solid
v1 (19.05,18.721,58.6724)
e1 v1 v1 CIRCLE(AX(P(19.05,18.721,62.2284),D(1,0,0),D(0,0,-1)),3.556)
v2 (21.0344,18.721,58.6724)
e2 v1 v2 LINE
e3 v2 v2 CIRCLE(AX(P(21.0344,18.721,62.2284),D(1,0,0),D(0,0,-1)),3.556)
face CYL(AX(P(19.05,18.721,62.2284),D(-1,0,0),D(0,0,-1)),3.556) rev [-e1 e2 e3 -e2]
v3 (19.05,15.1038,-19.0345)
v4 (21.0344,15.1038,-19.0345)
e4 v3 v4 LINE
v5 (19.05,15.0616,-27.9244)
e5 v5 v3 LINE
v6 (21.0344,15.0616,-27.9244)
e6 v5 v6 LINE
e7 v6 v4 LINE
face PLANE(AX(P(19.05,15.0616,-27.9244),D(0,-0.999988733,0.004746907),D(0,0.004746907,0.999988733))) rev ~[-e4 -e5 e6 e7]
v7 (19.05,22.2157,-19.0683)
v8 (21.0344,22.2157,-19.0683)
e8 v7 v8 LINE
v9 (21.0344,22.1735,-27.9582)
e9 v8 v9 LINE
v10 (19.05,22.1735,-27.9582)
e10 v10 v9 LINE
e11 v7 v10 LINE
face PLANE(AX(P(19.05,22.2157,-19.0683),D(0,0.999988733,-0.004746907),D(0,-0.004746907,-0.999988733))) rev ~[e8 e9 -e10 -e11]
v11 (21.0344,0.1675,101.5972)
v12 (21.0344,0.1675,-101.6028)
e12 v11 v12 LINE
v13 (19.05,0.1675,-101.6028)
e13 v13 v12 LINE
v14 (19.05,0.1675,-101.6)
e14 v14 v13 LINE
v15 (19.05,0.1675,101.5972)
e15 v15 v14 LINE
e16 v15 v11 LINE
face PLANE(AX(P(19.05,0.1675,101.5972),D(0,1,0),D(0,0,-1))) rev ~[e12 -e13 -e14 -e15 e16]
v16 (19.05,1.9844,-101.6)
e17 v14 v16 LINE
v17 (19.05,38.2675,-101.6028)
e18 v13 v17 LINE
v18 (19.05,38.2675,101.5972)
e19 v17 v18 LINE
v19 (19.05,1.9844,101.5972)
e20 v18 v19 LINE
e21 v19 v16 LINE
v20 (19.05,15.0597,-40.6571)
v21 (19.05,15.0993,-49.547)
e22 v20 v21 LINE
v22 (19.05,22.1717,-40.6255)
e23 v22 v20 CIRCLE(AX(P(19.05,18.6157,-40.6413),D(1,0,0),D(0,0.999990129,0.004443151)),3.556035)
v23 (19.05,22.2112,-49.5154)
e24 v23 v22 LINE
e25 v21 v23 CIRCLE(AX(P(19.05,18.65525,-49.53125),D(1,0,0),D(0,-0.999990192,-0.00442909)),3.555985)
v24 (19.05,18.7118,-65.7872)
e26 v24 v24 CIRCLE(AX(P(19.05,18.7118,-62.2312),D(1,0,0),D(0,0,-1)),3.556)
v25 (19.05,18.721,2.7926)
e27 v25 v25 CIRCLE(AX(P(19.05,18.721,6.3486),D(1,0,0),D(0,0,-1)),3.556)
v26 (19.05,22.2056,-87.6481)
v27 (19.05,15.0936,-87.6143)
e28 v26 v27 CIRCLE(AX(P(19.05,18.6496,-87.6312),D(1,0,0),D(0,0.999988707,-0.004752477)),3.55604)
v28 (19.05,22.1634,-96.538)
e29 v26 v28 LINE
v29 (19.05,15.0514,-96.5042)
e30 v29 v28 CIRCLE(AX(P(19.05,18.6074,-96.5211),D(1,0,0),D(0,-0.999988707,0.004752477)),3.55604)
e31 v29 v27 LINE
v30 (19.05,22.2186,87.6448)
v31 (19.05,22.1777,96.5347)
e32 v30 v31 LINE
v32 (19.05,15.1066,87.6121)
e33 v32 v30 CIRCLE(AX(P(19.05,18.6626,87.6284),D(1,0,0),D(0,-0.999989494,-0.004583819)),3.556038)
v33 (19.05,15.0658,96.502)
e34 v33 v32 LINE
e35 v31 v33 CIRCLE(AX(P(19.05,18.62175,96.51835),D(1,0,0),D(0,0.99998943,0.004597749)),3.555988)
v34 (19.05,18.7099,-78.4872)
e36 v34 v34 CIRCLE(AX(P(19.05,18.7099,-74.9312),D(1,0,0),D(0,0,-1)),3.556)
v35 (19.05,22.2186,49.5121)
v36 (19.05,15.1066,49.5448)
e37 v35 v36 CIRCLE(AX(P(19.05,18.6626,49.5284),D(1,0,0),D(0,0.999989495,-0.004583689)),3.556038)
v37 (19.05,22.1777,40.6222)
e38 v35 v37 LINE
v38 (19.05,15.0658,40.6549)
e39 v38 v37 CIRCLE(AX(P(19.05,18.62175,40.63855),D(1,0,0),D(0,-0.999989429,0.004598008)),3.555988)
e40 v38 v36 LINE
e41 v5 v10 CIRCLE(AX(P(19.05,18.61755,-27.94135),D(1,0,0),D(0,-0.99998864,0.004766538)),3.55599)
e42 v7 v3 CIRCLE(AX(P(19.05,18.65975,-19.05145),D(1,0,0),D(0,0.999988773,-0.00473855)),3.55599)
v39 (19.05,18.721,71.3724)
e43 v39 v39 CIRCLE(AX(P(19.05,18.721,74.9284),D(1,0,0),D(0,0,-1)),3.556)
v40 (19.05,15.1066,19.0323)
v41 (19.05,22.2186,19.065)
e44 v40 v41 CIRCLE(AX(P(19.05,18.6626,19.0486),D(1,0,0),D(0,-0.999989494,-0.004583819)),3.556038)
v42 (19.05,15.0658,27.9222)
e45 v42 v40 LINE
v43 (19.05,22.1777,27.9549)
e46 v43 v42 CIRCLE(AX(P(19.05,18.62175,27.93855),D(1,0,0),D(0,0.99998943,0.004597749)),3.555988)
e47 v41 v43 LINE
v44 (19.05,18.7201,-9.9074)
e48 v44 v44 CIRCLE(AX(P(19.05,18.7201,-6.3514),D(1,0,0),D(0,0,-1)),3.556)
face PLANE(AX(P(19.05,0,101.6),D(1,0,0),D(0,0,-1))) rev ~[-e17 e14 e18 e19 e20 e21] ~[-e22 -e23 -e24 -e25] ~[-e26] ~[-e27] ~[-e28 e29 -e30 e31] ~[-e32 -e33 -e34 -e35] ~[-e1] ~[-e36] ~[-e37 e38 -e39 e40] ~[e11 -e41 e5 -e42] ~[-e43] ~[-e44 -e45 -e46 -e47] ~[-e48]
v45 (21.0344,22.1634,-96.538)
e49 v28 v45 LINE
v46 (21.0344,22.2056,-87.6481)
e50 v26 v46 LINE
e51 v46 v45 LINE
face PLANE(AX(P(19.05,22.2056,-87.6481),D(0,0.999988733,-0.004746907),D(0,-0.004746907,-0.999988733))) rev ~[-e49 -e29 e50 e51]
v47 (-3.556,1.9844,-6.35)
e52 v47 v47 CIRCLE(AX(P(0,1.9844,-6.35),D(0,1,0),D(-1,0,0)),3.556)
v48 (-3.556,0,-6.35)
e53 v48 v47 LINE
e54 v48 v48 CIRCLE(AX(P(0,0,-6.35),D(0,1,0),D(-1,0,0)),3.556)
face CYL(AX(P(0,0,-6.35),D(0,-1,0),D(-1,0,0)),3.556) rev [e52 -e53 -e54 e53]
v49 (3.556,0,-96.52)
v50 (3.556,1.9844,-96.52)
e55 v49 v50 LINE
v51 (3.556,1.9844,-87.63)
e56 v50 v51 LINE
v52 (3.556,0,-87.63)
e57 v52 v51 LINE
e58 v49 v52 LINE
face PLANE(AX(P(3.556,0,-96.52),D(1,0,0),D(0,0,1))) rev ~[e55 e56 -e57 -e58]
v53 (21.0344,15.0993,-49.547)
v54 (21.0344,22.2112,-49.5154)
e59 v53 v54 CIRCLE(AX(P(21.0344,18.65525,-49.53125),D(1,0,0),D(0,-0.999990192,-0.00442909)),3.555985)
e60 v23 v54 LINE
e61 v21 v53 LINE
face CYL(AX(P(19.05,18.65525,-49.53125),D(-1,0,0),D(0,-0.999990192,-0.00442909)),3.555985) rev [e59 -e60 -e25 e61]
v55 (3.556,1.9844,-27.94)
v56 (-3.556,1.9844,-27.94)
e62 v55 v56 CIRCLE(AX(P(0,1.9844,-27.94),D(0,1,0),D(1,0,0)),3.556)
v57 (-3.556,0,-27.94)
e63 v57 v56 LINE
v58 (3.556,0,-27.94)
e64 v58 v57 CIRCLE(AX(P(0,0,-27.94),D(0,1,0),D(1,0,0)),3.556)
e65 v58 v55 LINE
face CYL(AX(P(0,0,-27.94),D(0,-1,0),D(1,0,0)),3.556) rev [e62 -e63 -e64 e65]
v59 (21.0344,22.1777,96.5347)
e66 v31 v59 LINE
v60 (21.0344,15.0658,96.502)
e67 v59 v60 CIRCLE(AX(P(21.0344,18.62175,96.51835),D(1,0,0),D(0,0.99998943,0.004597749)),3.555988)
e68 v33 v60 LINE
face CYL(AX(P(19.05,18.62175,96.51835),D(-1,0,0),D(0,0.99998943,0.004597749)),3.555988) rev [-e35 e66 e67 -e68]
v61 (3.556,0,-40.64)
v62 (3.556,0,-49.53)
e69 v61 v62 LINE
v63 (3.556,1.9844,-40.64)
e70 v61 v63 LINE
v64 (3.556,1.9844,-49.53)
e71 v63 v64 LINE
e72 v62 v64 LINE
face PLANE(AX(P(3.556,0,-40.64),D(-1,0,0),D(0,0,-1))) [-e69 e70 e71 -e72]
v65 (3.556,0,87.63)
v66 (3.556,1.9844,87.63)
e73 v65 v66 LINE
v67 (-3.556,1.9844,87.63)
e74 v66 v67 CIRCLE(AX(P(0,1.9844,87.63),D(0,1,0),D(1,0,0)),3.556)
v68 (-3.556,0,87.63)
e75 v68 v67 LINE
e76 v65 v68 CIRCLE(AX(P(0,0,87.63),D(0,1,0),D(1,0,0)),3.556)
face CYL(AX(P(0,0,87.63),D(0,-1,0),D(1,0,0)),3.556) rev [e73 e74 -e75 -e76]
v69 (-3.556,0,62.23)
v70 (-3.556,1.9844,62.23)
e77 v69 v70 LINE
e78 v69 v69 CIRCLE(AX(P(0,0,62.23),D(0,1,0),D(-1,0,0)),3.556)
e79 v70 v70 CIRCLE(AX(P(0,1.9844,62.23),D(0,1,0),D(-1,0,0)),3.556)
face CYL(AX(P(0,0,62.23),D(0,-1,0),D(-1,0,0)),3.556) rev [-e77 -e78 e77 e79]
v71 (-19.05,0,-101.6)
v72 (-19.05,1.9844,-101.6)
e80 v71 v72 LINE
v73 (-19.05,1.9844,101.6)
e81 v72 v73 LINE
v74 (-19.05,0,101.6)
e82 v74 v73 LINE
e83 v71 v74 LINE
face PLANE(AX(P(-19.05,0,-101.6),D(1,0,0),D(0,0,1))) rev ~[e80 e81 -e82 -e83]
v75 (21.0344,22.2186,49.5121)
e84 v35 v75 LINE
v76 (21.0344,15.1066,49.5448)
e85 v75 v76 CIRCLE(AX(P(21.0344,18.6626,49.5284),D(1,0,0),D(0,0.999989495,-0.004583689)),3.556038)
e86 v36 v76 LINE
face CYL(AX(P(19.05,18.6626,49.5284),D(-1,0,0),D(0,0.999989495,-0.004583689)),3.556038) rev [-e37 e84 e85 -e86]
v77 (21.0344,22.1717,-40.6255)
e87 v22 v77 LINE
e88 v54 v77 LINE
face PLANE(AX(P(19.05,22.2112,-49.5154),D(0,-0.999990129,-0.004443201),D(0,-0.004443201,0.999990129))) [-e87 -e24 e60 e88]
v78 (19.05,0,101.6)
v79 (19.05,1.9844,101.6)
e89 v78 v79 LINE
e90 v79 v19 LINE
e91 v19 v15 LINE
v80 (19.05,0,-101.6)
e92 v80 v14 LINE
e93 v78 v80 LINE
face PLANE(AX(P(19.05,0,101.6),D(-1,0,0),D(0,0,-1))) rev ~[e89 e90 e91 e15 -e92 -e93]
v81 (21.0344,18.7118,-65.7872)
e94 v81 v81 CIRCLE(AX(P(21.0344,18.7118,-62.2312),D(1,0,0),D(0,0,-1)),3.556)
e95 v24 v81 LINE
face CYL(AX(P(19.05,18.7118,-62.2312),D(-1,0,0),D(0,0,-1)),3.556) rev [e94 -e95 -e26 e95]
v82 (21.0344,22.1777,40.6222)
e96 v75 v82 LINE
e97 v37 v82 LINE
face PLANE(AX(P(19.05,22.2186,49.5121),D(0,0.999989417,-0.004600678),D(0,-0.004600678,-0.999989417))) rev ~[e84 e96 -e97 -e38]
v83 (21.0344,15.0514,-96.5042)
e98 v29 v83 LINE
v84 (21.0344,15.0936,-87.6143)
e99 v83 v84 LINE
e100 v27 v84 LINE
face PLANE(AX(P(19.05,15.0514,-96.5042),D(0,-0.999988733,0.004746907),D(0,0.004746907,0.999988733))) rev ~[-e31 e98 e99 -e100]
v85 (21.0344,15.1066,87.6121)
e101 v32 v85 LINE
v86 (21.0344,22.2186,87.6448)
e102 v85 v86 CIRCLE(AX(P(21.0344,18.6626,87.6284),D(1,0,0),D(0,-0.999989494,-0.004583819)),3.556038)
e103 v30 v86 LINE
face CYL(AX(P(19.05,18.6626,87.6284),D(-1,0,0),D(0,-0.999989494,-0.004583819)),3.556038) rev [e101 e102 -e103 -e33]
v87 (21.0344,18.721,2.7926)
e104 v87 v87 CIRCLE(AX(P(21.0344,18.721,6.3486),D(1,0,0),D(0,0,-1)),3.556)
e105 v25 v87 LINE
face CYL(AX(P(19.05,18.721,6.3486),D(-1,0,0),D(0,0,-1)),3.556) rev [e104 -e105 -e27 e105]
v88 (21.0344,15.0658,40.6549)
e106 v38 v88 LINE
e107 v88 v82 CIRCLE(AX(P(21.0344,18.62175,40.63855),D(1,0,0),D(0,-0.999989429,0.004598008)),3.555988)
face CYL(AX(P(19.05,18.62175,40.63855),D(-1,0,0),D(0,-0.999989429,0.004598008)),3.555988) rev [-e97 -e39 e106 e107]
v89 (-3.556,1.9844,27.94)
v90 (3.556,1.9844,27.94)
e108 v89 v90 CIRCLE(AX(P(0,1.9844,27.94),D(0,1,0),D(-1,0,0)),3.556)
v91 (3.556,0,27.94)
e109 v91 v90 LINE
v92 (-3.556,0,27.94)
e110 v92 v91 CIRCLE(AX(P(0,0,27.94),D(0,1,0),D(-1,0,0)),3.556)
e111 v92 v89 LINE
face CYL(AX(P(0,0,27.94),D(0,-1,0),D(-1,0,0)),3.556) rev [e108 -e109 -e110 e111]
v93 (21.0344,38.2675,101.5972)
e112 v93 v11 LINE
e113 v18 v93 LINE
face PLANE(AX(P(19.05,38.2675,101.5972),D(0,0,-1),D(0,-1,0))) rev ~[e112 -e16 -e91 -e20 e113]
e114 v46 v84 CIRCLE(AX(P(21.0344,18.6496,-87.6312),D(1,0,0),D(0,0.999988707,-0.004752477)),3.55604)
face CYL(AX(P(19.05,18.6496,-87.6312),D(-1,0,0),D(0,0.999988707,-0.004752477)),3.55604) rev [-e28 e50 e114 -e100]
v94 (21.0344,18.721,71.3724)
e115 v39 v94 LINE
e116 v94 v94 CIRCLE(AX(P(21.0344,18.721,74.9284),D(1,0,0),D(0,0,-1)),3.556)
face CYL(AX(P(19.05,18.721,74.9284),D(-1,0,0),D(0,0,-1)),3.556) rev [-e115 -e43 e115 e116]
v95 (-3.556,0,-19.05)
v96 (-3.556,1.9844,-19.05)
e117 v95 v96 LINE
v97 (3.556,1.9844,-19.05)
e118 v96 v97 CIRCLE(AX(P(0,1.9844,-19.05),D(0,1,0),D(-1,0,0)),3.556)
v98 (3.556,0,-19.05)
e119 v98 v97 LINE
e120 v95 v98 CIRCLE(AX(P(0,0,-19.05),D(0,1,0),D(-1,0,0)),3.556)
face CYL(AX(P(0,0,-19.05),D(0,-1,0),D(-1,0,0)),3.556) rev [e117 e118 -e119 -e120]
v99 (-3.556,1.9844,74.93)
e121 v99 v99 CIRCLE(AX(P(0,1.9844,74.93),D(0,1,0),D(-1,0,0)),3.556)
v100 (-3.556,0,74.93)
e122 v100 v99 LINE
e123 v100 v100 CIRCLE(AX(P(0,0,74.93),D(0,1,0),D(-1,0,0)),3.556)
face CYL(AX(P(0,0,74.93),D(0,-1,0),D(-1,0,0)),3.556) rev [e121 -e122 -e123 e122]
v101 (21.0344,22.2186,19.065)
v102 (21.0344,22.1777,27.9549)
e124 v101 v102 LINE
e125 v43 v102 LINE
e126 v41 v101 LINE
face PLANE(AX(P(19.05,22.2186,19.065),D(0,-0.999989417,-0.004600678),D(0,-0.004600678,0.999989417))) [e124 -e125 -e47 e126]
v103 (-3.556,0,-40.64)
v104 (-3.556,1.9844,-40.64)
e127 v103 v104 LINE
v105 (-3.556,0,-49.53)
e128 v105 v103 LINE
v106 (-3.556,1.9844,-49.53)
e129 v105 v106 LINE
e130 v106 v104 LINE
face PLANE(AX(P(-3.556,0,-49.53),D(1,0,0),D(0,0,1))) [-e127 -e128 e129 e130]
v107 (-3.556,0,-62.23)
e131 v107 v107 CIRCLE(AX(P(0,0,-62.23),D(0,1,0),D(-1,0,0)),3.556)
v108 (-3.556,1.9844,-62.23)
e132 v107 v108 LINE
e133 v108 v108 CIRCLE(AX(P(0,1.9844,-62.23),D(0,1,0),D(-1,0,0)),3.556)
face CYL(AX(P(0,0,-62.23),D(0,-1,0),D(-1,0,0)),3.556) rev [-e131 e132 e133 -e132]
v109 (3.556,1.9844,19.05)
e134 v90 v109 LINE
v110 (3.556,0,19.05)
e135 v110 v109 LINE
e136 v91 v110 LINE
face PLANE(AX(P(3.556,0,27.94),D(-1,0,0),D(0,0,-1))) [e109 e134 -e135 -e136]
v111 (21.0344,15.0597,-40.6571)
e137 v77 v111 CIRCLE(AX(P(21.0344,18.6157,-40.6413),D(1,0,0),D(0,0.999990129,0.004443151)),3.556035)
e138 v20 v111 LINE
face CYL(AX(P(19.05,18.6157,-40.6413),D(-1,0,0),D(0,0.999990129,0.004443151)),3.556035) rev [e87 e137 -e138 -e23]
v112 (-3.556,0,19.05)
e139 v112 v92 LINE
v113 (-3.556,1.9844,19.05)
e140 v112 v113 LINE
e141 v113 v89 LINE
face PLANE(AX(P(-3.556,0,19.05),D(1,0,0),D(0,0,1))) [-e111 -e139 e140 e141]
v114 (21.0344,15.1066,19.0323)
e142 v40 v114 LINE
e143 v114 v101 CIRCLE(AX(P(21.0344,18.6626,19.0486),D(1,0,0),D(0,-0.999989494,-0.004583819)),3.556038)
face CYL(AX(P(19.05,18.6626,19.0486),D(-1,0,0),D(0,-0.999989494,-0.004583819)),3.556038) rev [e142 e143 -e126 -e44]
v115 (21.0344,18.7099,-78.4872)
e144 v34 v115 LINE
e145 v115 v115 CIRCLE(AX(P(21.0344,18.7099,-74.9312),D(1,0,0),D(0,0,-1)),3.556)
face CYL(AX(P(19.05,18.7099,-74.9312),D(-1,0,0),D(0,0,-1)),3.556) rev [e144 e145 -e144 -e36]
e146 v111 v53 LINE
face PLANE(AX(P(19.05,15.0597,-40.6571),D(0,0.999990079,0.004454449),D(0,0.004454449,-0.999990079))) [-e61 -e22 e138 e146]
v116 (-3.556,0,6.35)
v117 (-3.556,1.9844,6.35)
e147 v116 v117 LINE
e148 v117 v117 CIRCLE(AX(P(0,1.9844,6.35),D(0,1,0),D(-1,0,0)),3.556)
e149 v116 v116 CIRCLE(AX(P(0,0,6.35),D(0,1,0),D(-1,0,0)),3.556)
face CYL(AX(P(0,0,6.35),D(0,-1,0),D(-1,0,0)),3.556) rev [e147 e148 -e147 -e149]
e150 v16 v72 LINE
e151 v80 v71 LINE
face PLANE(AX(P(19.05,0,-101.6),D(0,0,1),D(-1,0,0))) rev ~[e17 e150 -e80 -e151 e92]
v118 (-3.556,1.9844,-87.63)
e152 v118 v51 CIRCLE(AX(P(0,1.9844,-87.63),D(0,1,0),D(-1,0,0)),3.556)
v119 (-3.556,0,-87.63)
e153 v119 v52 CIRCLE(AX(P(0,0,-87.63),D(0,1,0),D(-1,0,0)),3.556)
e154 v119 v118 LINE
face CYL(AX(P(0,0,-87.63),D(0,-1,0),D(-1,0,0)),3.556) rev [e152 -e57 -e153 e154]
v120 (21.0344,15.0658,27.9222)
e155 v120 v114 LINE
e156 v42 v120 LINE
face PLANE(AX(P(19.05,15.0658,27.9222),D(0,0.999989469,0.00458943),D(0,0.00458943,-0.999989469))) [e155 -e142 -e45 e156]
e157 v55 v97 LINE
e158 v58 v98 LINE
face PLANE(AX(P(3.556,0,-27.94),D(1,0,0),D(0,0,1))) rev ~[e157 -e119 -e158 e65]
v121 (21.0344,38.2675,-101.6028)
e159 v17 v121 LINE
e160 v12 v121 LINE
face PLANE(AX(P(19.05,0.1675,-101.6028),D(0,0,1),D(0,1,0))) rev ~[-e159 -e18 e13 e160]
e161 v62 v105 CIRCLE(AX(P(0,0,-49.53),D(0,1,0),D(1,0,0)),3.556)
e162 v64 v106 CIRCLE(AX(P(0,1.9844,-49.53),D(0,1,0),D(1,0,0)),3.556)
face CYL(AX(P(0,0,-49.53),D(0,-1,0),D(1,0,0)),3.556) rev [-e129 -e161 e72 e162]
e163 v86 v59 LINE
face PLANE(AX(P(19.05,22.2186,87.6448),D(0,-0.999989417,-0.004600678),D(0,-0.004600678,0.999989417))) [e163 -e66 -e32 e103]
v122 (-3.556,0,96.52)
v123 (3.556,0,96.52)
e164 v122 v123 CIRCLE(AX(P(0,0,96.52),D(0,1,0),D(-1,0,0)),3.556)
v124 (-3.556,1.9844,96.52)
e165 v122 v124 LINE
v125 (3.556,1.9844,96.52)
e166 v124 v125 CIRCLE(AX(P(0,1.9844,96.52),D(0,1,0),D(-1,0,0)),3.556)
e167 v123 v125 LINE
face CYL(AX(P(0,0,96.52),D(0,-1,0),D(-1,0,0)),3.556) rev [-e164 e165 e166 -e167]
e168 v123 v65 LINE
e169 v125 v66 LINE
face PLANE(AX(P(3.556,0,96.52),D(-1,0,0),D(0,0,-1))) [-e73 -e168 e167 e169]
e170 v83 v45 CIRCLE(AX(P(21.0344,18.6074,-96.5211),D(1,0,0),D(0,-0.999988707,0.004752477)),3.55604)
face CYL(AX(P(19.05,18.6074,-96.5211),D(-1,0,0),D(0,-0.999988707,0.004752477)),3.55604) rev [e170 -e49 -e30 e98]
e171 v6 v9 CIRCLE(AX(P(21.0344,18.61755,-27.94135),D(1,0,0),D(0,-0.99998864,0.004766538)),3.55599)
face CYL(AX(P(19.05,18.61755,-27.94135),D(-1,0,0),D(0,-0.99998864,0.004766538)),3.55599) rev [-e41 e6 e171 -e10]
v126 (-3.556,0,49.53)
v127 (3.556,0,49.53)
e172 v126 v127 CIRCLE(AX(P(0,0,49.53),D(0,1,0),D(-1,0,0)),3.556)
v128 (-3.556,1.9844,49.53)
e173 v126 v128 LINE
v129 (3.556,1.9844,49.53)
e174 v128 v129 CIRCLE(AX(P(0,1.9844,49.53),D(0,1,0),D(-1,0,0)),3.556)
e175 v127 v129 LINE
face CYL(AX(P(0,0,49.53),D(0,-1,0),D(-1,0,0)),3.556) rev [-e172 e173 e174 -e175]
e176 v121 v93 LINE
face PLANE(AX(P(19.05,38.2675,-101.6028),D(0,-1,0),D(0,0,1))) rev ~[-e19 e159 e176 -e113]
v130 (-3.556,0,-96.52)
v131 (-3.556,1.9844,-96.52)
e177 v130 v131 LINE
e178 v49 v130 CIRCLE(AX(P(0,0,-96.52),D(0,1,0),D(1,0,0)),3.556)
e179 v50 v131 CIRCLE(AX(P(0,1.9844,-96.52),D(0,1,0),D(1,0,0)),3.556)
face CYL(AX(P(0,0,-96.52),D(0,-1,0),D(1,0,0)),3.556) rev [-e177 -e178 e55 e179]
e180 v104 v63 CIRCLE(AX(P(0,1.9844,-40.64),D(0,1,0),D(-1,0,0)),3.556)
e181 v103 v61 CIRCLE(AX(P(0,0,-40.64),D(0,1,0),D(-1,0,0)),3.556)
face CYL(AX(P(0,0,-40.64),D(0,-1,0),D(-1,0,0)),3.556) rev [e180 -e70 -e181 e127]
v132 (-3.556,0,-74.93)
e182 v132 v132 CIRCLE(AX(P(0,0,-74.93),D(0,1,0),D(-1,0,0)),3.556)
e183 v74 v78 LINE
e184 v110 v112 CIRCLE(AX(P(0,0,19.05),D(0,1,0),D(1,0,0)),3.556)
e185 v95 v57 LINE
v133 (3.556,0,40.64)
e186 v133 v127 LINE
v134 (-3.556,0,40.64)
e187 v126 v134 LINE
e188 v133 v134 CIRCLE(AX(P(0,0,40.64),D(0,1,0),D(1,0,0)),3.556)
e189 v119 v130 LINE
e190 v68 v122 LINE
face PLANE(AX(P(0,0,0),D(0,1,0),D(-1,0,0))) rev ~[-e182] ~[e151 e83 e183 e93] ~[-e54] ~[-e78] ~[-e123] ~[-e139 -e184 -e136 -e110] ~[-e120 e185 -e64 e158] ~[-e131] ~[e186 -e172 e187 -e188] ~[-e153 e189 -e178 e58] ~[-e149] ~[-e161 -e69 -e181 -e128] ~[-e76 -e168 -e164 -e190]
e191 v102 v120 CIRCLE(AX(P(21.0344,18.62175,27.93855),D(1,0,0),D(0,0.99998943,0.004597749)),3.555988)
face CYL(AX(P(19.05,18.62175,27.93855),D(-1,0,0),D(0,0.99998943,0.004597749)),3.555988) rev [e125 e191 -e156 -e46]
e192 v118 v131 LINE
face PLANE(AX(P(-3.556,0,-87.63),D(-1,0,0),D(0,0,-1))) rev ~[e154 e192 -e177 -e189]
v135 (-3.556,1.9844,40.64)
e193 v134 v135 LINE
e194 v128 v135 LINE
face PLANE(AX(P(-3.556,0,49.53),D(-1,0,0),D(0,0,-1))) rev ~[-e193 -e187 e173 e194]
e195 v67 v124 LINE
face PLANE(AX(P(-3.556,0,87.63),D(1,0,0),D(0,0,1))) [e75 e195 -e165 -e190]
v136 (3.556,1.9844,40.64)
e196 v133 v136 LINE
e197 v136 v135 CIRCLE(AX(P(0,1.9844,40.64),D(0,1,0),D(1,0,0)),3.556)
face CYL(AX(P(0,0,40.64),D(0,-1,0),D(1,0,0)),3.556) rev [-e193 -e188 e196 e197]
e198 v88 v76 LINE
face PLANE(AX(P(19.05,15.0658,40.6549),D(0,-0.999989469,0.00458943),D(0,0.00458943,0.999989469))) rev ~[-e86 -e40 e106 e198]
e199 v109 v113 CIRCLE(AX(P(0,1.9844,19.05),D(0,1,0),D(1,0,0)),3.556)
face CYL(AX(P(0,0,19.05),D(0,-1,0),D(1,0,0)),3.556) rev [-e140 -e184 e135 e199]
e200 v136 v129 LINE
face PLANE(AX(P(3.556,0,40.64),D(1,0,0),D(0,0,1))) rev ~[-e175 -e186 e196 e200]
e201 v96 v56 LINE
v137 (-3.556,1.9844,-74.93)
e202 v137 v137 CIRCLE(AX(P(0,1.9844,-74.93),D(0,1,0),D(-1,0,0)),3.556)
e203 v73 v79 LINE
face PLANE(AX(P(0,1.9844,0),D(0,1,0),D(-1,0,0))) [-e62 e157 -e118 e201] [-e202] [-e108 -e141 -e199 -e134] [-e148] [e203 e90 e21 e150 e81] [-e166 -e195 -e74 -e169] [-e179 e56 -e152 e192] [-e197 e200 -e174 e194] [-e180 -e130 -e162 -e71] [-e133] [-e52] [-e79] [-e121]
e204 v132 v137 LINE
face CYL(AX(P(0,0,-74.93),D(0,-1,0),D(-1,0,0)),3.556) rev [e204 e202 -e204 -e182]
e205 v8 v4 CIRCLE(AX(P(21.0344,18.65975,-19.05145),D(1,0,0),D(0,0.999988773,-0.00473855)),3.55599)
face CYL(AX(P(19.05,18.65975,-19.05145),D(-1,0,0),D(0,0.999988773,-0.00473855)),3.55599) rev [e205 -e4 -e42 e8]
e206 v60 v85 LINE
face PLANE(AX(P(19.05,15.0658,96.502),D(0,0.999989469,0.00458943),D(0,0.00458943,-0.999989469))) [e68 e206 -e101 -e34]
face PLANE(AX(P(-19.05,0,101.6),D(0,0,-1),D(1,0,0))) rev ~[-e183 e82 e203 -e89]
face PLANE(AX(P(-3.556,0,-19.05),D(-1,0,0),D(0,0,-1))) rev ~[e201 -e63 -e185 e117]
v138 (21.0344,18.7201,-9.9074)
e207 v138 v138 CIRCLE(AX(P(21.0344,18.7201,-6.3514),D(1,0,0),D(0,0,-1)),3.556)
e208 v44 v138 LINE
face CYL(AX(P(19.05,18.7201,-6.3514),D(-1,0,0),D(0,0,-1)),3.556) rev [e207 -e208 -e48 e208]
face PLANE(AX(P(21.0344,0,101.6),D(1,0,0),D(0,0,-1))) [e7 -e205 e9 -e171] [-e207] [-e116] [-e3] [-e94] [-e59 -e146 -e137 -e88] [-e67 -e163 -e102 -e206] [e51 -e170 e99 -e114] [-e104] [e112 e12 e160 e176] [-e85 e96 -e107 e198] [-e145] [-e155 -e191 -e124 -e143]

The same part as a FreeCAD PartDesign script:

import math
import FreeCAD as App
import Part
import Sketcher
from FreeCAD import Vector
Q = App.Units.Quantity


def add_polygon(sketch, points):
    """Adds a closed chain of lines whose ends are joined by coincident constraints."""
    first, n = sketch.GeometryCount, len(points)
    for a, b in zip(points, points[1:] + points[:1]):
        sketch.addGeometry(Part.LineSegment(App.Vector(*a, 0), App.Vector(*b, 0)), False)
    for i in range(n):
        sketch.addConstraint(Sketcher.Constraint("Coincident", first + i, 2, first + (i + 1) % n, 1))

doc = App.newDocument("Part")
body = doc.addObject("PartDesign::Body", "Body")

sketch1 = body.newObject("Sketcher::SketchObject", "Sketch")
sketch1.AttachmentSupport = (doc.getObject("XZ_Plane"), [""])
sketch1.MapMode = "FlatFace"
add_polygon(sketch1, [(-19.1, -101.6), (-19.1, 101.6), (19.1, 101.6), (19.1, -101.6)])
sketch1.addGeometry(Part.ArcOfCircle(Part.Circle(Vector(0, -96.5, 0), Vector(0, 0, 1), 3.6), math.radians(180), math.radians(360)), False)
sketch1.addGeometry(Part.LineSegment(Vector(3.6, -96.5, 0), Vector(3.6, -87.6, 0)), False)
sketch1.addGeometry(Part.ArcOfCircle(Part.Circle(Vector(0, -87.6, 0), Vector(0, 0, 1), 3.6), math.radians(0), math.radians(180)), False)
sketch1.addGeometry(Part.LineSegment(Vector(-3.6, -87.6, 0), Vector(-3.6, -96.5, 0)), False)
sketch1.addGeometry(Part.Circle(Vector(0, -74.9, 0), Vector(0, 0, 1), 3.6), False)
sketch1.addGeometry(Part.Circle(Vector(0, -62.2, 0), Vector(0, 0, 1), 3.6), False)
sketch1.addGeometry(Part.LineSegment(Vector(-3.6, -40.6, 0), Vector(-3.6, -49.5, 0)), False)
sketch1.addGeometry(Part.ArcOfCircle(Part.Circle(Vector(0, -49.5, 0), Vector(0, 0, 1), 3.6), math.radians(180), math.radians(360)), False)
sketch1.addGeometry(Part.LineSegment(Vector(3.6, -49.5, 0), Vector(3.6, -40.6, 0)), False)
sketch1.addGeometry(Part.ArcOfCircle(Part.Circle(Vector(0, -40.6, 0), Vector(0, 0, 1), 3.6), math.radians(0), math.radians(180)), False)
sketch1.addGeometry(Part.ArcOfCircle(Part.Circle(Vector(0, -27.9, 0), Vector(0, 0, 1), 3.6), math.radians(180), math.radians(360)), False)
sketch1.addGeometry(Part.LineSegment(Vector(3.6, -27.9, 0), Vector(3.6, -19.1, 0)), False)
sketch1.addGeometry(Part.ArcOfCircle(Part.Circle(Vector(0, -19.1, 0), Vector(0, 0, 1), 3.6), math.radians(0), math.radians(180)), False)
sketch1.addGeometry(Part.LineSegment(Vector(-3.6, -19.1, 0), Vector(-3.6, -27.9, 0)), False)
sketch1.addGeometry(Part.Circle(Vector(0, -6.3, 0), Vector(0, 0, 1), 3.6), False)
sketch1.addGeometry(Part.Circle(Vector(0, 6.3, 0), Vector(0, 0, 1), 3.6), False)
sketch1.addGeometry(Part.LineSegment(Vector(3.6, 19.1, 0), Vector(3.6, 27.9, 0)), False)
sketch1.addGeometry(Part.ArcOfCircle(Part.Circle(Vector(0, 27.9, 0), Vector(0, 0, 1), 3.6), math.radians(0), math.radians(180)), False)
sketch1.addGeometry(Part.LineSegment(Vector(-3.6, 27.9, 0), Vector(-3.6, 19.1, 0)), False)
sketch1.addGeometry(Part.ArcOfCircle(Part.Circle(Vector(0, 19.1, 0), Vector(0, 0, 1), 3.6), math.radians(180), math.radians(360)), False)
sketch1.addGeometry(Part.ArcOfCircle(Part.Circle(Vector(0, 49.5, 0), Vector(0, 0, 1), 3.6), math.radians(0), math.radians(180)), False)
sketch1.addGeometry(Part.LineSegment(Vector(-3.6, 49.5, 0), Vector(-3.6, 40.6, 0)), False)
sketch1.addGeometry(Part.ArcOfCircle(Part.Circle(Vector(0, 40.6, 0), Vector(0, 0, 1), 3.6), math.radians(180), math.radians(360)), False)
sketch1.addGeometry(Part.LineSegment(Vector(3.6, 40.6, 0), Vector(3.6, 49.5, 0)), False)
sketch1.addGeometry(Part.Circle(Vector(0, 62.2, 0), Vector(0, 0, 1), 3.6), False)
sketch1.addGeometry(Part.Circle(Vector(0, 74.9, 0), Vector(0, 0, 1), 3.6), False)
sketch1.addGeometry(Part.LineSegment(Vector(-3.6, 96.5, 0), Vector(-3.6, 87.6, 0)), False)
sketch1.addGeometry(Part.ArcOfCircle(Part.Circle(Vector(0, 87.6, 0), Vector(0, 0, 1), 3.6), math.radians(180), math.radians(360)), False)
sketch1.addGeometry(Part.LineSegment(Vector(3.6, 87.6, 0), Vector(3.6, 96.5, 0)), False)
sketch1.addGeometry(Part.ArcOfCircle(Part.Circle(Vector(0, 96.5, 0), Vector(0, 0, 1), 3.6), math.radians(0), math.radians(180)), False)
sketch1.addConstraint([
    Sketcher.Constraint("Tangent", 4, 2, 5, 1),
    Sketcher.Constraint("Tangent", 5, 2, 6, 1),
    Sketcher.Constraint("Tangent", 6, 2, 7, 1),
    Sketcher.Constraint("Tangent", 7, 2, 4, 1),
    Sketcher.Constraint("Tangent", 10, 2, 11, 1),
    Sketcher.Constraint("Tangent", 11, 2, 12, 1),
    Sketcher.Constraint("Tangent", 12, 2, 13, 1),
    Sketcher.Constraint("Tangent", 13, 2, 10, 1),
    Sketcher.Constraint("Tangent", 14, 2, 15, 1),
    Sketcher.Constraint("Tangent", 15, 2, 16, 1),
    Sketcher.Constraint("Tangent", 16, 2, 17, 1),
    Sketcher.Constraint("Tangent", 17, 2, 14, 1),
    Sketcher.Constraint("Tangent", 20, 2, 21, 1),
    Sketcher.Constraint("Tangent", 21, 2, 22, 1),
    Sketcher.Constraint("Tangent", 22, 2, 23, 1),
    Sketcher.Constraint("Tangent", 23, 2, 20, 1),
    Sketcher.Constraint("Tangent", 24, 2, 25, 1),
    Sketcher.Constraint("Tangent", 25, 2, 26, 1),
    Sketcher.Constraint("Tangent", 26, 2, 27, 1),
    Sketcher.Constraint("Tangent", 27, 2, 24, 1),
    Sketcher.Constraint("Tangent", 30, 2, 31, 1),
    Sketcher.Constraint("Tangent", 31, 2, 32, 1),
    Sketcher.Constraint("Tangent", 32, 2, 33, 1),
    Sketcher.Constraint("Tangent", 33, 2, 30, 1),
    Sketcher.Constraint("Vertical", 0),
    Sketcher.Constraint("Horizontal", 1),
    Sketcher.Constraint("Vertical", 2),
    Sketcher.Constraint("Horizontal", 3),
    Sketcher.Constraint("Vertical", 5),
    Sketcher.Constraint("Vertical", 7),
    Sketcher.Constraint("Vertical", 10),
    Sketcher.Constraint("Vertical", 12),
    Sketcher.Constraint("Vertical", 15),
    Sketcher.Constraint("Vertical", 17),
    Sketcher.Constraint("Vertical", 20),
    Sketcher.Constraint("Vertical", 22),
    Sketcher.Constraint("Vertical", 25),
    Sketcher.Constraint("Vertical", 27),
    Sketcher.Constraint("Vertical", 30),
    Sketcher.Constraint("Vertical", 32),
    Sketcher.Constraint("Equal", 6, 8),
    Sketcher.Constraint("Equal", 8, 9),
    Sketcher.Constraint("Equal", 9, 11),
    Sketcher.Constraint("Equal", 13, 14),
    Sketcher.Constraint("Equal", 16, 18),
    Sketcher.Constraint("Equal", 18, 19),
    Sketcher.Constraint("Equal", 19, 21),
    Sketcher.Constraint("Equal", 23, 24),
    Sketcher.Constraint("Equal", 26, 28),
    Sketcher.Constraint("Equal", 28, 29),
    Sketcher.Constraint("Equal", 29, 31),
    Sketcher.Constraint("Symmetric", 18, 3, 19, 3, -1, 1),
    Sketcher.Constraint("Symmetric", 14, 3, 21, 3, -1, 1),
    Sketcher.Constraint("Symmetric", 11, 3, 24, 3, -1, 1),
    Sketcher.Constraint("Symmetric", 9, 3, 28, 3, -1, 1),
    Sketcher.Constraint("Symmetric", 8, 3, 29, 3, -1, 1),
    Sketcher.Constraint("Symmetric", 6, 3, 31, 3, -1, 1),
    Sketcher.Constraint("Symmetric", 0, 2, 2, 2, -1, 1),
    Sketcher.Constraint("Symmetric", 16, 3, 23, 3, -1),
    Sketcher.Constraint("Symmetric", 13, 3, 26, 3, -1),
    Sketcher.Constraint("Symmetric", 4, 3, 33, 3, -1),
    Sketcher.Constraint("PointOnObject", 8, 3, -2),
    Sketcher.Constraint("PointOnObject", 9, 3, -2),
    Sketcher.Constraint("PointOnObject", 18, 3, -2),
    Sketcher.Constraint("Equal", 7, 10),
    Sketcher.Constraint("Equal", 12, 15),
    Sketcher.Constraint("Diameter", 8, Q("0.28 in")),
    Sketcher.Constraint("DistanceY", 0, 1, 0, 2, Q("8 in")),
    Sketcher.Constraint("DistanceY", 5, 1, 5, 2, Q("0.35 in")),
    Sketcher.Constraint("DistanceY", 6, 3, 8, 3, Q("0.5 in")),
    Sketcher.Constraint("DistanceY", 8, 3, 9, 3, Q("0.5 in")),
    Sketcher.Constraint("DistanceY", 9, 3, 11, 3, Q("0.5 in")),
    Sketcher.Constraint("DistanceY", 13, 3, 14, 3, Q("0.5 in")),
    Sketcher.Constraint("DistanceY", 16, 3, 18, 3, Q("0.5 in")),
    Sketcher.Constraint("DistanceY", 18, 3, 19, 3, Q("0.5 in")),
    Sketcher.Constraint("DistanceX", 1, 1, 1, 2, Q("1.5 in")),
])
pad1 = body.newObject("PartDesign::Pad", "Pad")
pad1.Profile = sketch1
pad1.Length = Q("0.078126 in")
pad1.Reversed = True

sketch2 = body.newObject("Sketcher::SketchObject", "Sketch001")
sketch2.AttachmentSupport = (doc.getObject("YZ_Plane"), [""])
sketch2.MapMode = "FlatFace"
sketch2.AttachmentOffset = App.Placement(Vector(0, 0, 0.75 * 25.4), App.Rotation())
add_polygon(sketch2, [(38.2675, 101.5972), (0.1675, 101.5972), (0.1675, -101.6028), (38.2675, -101.6028)])
sketch2.addGeometry(Part.LineSegment(Vector(15.1066, 87.6121, 0), Vector(15.0658, 96.502, 0)), False)
sketch2.addGeometry(Part.ArcOfCircle(Part.Circle(Vector(18.6217, 96.5183, 0), Vector(0, 0, 1), 3.556038), math.radians(0.264242), math.radians(180.262638)), False)
sketch2.addGeometry(Part.LineSegment(Vector(22.1777, 96.5347, 0), Vector(22.2186, 87.6448, 0)), False)
sketch2.addGeometry(Part.ArcOfCircle(Part.Circle(Vector(18.6626, 87.6284, 0), Vector(0, 0, 1), 3.556037), math.radians(-179.737369), math.radians(0.264242)), False)
sketch2.addGeometry(Part.Circle(Vector(18.721, 74.9284, 0), Vector(0, 0, 1), 3.556), False)
sketch2.addGeometry(Part.Circle(Vector(18.721, 62.2284, 0), Vector(0, 0, 1), 3.556), False)
sketch2.addGeometry(Part.ArcOfCircle(Part.Circle(Vector(18.6626, 49.5284, 0), Vector(0, 0, 1), 3.556037), math.radians(-0.262631), math.radians(179.735758)), False)
sketch2.addGeometry(Part.LineSegment(Vector(22.2186, 49.5121, 0), Vector(22.1777, 40.6222, 0)), False)
sketch2.addGeometry(Part.ArcOfCircle(Part.Circle(Vector(18.6217, 40.6385, 0), Vector(0, 0, 1), 3.555938), math.radians(179.735751), math.radians(359.737369)), False)
sketch2.addGeometry(Part.LineSegment(Vector(15.0658, 40.6549, 0), Vector(15.1066, 49.5448, 0)), False)
sketch2.addGeometry(Part.LineSegment(Vector(22.1777, 27.9549, 0), Vector(22.2186, 19.065, 0)), False)
sketch2.addGeometry(Part.ArcOfCircle(Part.Circle(Vector(18.6626, 19.0486, 0), Vector(0, 0, 1), 3.556037), math.radians(-179.737369), math.radians(0.264242)), False)
sketch2.addGeometry(Part.LineSegment(Vector(15.1066, 19.0323, 0), Vector(15.0658, 27.9222, 0)), False)
sketch2.addGeometry(Part.ArcOfCircle(Part.Circle(Vector(18.6217, 27.9385, 0), Vector(0, 0, 1), 3.556038), math.radians(0.264242), math.radians(180.262638)), False)
sketch2.addGeometry(Part.Circle(Vector(18.721, 6.3486, 0), Vector(0, 0, 1), 3.556), False)
sketch2.addGeometry(Part.Circle(Vector(18.7201, -6.3514, 0), Vector(0, 0, 1), 3.556), False)
sketch2.addGeometry(Part.ArcOfCircle(Part.Circle(Vector(18.6598, -19.0514, 0), Vector(0, 0, 1), 3.55594), math.radians(-0.272306), math.radians(179.727702)), False)
sketch2.addGeometry(Part.LineSegment(Vector(22.2157, -19.0683, 0), Vector(22.1735, -27.9582, 0)), False)
sketch2.addGeometry(Part.ArcOfCircle(Part.Circle(Vector(18.6176, -27.9413, 0), Vector(0, 0, 1), 3.55604), math.radians(179.727702), math.radians(359.727694)), False)
sketch2.addGeometry(Part.LineSegment(Vector(15.0616, -27.9244, 0), Vector(15.1038, -19.0345, 0)), False)
sketch2.addGeometry(Part.LineSegment(Vector(15.0993, -49.547, 0), Vector(15.0597, -40.6571, 0)), False)
sketch2.addGeometry(Part.ArcOfCircle(Part.Circle(Vector(18.6157, -40.6413, 0), Vector(0, 0, 1), 3.556035), math.radians(0.254575), math.radians(180.254575)), False)
sketch2.addGeometry(Part.LineSegment(Vector(22.1717, -40.6255, 0), Vector(22.2112, -49.5154, 0)), False)
sketch2.addGeometry(Part.ArcOfCircle(Part.Circle(Vector(18.6553, -49.5312, 0), Vector(0, 0, 1), 3.556035), math.radians(-179.745425), math.radians(0.254582)), False)
sketch2.addGeometry(Part.Circle(Vector(18.7118, -62.2312, 0), Vector(0, 0, 1), 3.556), False)
sketch2.addGeometry(Part.Circle(Vector(18.7099, -74.9312, 0), Vector(0, 0, 1), 3.556), False)
sketch2.addGeometry(Part.ArcOfCircle(Part.Circle(Vector(18.6496, -87.6312, 0), Vector(0, 0, 1), 3.55604), math.radians(-0.272298), math.radians(179.727702)), False)
sketch2.addGeometry(Part.LineSegment(Vector(22.2056, -87.6481, 0), Vector(22.1634, -96.538, 0)), False)
sketch2.addGeometry(Part.ArcOfCircle(Part.Circle(Vector(18.6074, -96.5211, 0), Vector(0, 0, 1), 3.55604), math.radians(179.727702), math.radians(359.727702)), False)
sketch2.addGeometry(Part.LineSegment(Vector(15.0514, -96.5042, 0), Vector(15.0936, -87.6143, 0)), False)
sketch2.addConstraint([
    Sketcher.Constraint("Tangent", 4, 2, 5, 2),
    Sketcher.Constraint("Tangent", 5, 1, 6, 1),
    Sketcher.Constraint("Tangent", 6, 2, 7, 2),
    Sketcher.Constraint("Tangent", 7, 1, 4, 1),
    Sketcher.Constraint("Tangent", 10, 1, 11, 1),
    Sketcher.Constraint("Tangent", 11, 2, 12, 2),
    Sketcher.Constraint("Tangent", 12, 1, 13, 1),
    Sketcher.Constraint("Tangent", 13, 2, 10, 2),
    Sketcher.Constraint("Tangent", 14, 2, 15, 2),
    Sketcher.Constraint("Tangent", 15, 1, 16, 1),
    Sketcher.Constraint("Tangent", 16, 2, 17, 2),
    Sketcher.Constraint("Tangent", 17, 1, 14, 1),
    Sketcher.Constraint("Tangent", 20, 1, 21, 1),
    Sketcher.Constraint("Tangent", 21, 2, 22, 2),
    Sketcher.Constraint("Tangent", 22, 1, 23, 1),
    Sketcher.Constraint("Tangent", 23, 2, 20, 2),
    Sketcher.Constraint("Tangent", 24, 2, 25, 2),
    Sketcher.Constraint("Tangent", 25, 1, 26, 1),
    Sketcher.Constraint("Tangent", 26, 2, 27, 2),
    Sketcher.Constraint("Tangent", 27, 1, 24, 1),
    Sketcher.Constraint("Tangent", 30, 1, 31, 1),
    Sketcher.Constraint("Tangent", 31, 2, 32, 2),
    Sketcher.Constraint("Tangent", 32, 1, 33, 1),
    Sketcher.Constraint("Tangent", 33, 2, 30, 2),
    Sketcher.Constraint("Horizontal", 0),
    Sketcher.Constraint("Vertical", 1),
    Sketcher.Constraint("Horizontal", 2),
    Sketcher.Constraint("Vertical", 3),
    Sketcher.Constraint("Equal", 5, 7),
    Sketcher.Constraint("Equal", 7, 8),
    Sketcher.Constraint("Equal", 8, 9),
    Sketcher.Constraint("Equal", 9, 10),
    Sketcher.Constraint("Equal", 10, 12),
    Sketcher.Constraint("Equal", 12, 15),
    Sketcher.Constraint("Equal", 15, 17),
    Sketcher.Constraint("Equal", 17, 18),
    Sketcher.Constraint("Equal", 18, 19),
    Sketcher.Constraint("Equal", 19, 20),
    Sketcher.Constraint("Equal", 20, 22),
    Sketcher.Constraint("Equal", 22, 25),
    Sketcher.Constraint("Equal", 25, 27),
    Sketcher.Constraint("Equal", 27, 28),
    Sketcher.Constraint("Equal", 28, 29),
    Sketcher.Constraint("Equal", 29, 30),
    Sketcher.Constraint("Equal", 30, 32),
    Sketcher.Constraint("Parallel", 6, 14),
    Sketcher.Constraint("Parallel", 13, 21),
    Sketcher.Constraint("Parallel", 16, 24),
    Sketcher.Constraint("Parallel", 23, 31),
    Sketcher.Constraint("Vertical", 8, 3, 9, 3),
    Sketcher.Constraint("Vertical", 7, 3, 10, 3),
    Sketcher.Constraint("Vertical", 5, 3, 12, 3),
    Sketcher.Constraint("Vertical", 10, 3, 15, 3),
    Sketcher.Constraint("Vertical", 12, 3, 17, 3),
    Sketcher.Constraint("Vertical", 9, 3, 18, 3),
    Sketcher.Constraint("Equal", 6, 11),
    Sketcher.Constraint("Equal", 16, 21),
    Sketcher.Constraint("Equal", 23, 24),
    Sketcher.Constraint("Equal", 26, 31),
    Sketcher.Constraint("Diameter", 8, Q("0.28 in")),
    Sketcher.Constraint("DistanceY", 1, 2, 1, 1, Q("8 in")),
    Sketcher.Constraint("DistanceX", 0, 2, 0, 1, Q("1.5 in")),
    Sketcher.Constraint("DistanceY", 8, 3, 7, 3, Q("0.5 in")),
    Sketcher.Constraint("DistanceY", 9, 3, 8, 3, Q("0.5 in")),
    Sketcher.Constraint("DistanceY", 10, 3, 9, 3, Q("0.5 in")),
    Sketcher.Constraint("DistanceY", 17, 3, 12, 3, Q("0.5 in")),
    Sketcher.Constraint("DistanceY", 18, 3, 15, 3, Q("0.5 in")),
    Sketcher.Constraint("DistanceY", 19, 3, 18, 3, Q("0.5 in")),
    Sketcher.Constraint("DistanceY", 20, 3, 19, 3, Q("0.5 in")),
    Sketcher.Constraint("DistanceY", 25, 3, 22, 3, Q("0.5 in")),
    Sketcher.Constraint("DistanceY", 28, 3, 27, 3, Q("0.5 in")),
    Sketcher.Constraint("DistanceY", 29, 3, 28, 3, Q("0.5 in")),
    Sketcher.Constraint("DistanceY", 30, 3, 29, 3, Q("0.5 in")),
    Sketcher.Constraint("Distance", 4, Q("0.35 in")),
    Sketcher.Constraint("DistanceX", -1, 1, 19, 3, Q("0.737 in")),
    Sketcher.Constraint("DistanceX", -1, 1, 25, 3, Q("0.7329 in")),
    Sketcher.Constraint("DistanceX", -1, 1, 29, 3, Q("0.7366 in")),
    Sketcher.Constraint("DistanceX", -1, 1, 0, 2, Q("0.0066 in")),
    Sketcher.Constraint("DistanceY", -1, 1, 0, 2, Q("3.9999 in")),
    Sketcher.Constraint("DistanceY", -1, 1, 4, 2, Q("3.7993 in")),
    Sketcher.Constraint("DistanceY", -1, 1, 14, 2, Q("0.7506 in")),
    Sketcher.Constraint("DistanceX", 7, 3, 8, 3, Q("0.0023 in")),
    Sketcher.Constraint("DistanceX", 20, 3, 18, 3, Q("0.0024 in")),
    Sketcher.Constraint("DistanceX", 22, 3, 28, 3, Q("0.0037 in")),
    Sketcher.Constraint("DistanceX", 32, 3, 28, 3, Q("0.0041 in")),
    Sketcher.Constraint("DistanceX", 1, 2, 28, 3, Q("0.7301 in")),
])
pad2 = body.newObject("PartDesign::Pad", "Pad001")
pad2.Profile = sketch2
pad2.Length = Q("0.078126 in")

doc.recompute()
